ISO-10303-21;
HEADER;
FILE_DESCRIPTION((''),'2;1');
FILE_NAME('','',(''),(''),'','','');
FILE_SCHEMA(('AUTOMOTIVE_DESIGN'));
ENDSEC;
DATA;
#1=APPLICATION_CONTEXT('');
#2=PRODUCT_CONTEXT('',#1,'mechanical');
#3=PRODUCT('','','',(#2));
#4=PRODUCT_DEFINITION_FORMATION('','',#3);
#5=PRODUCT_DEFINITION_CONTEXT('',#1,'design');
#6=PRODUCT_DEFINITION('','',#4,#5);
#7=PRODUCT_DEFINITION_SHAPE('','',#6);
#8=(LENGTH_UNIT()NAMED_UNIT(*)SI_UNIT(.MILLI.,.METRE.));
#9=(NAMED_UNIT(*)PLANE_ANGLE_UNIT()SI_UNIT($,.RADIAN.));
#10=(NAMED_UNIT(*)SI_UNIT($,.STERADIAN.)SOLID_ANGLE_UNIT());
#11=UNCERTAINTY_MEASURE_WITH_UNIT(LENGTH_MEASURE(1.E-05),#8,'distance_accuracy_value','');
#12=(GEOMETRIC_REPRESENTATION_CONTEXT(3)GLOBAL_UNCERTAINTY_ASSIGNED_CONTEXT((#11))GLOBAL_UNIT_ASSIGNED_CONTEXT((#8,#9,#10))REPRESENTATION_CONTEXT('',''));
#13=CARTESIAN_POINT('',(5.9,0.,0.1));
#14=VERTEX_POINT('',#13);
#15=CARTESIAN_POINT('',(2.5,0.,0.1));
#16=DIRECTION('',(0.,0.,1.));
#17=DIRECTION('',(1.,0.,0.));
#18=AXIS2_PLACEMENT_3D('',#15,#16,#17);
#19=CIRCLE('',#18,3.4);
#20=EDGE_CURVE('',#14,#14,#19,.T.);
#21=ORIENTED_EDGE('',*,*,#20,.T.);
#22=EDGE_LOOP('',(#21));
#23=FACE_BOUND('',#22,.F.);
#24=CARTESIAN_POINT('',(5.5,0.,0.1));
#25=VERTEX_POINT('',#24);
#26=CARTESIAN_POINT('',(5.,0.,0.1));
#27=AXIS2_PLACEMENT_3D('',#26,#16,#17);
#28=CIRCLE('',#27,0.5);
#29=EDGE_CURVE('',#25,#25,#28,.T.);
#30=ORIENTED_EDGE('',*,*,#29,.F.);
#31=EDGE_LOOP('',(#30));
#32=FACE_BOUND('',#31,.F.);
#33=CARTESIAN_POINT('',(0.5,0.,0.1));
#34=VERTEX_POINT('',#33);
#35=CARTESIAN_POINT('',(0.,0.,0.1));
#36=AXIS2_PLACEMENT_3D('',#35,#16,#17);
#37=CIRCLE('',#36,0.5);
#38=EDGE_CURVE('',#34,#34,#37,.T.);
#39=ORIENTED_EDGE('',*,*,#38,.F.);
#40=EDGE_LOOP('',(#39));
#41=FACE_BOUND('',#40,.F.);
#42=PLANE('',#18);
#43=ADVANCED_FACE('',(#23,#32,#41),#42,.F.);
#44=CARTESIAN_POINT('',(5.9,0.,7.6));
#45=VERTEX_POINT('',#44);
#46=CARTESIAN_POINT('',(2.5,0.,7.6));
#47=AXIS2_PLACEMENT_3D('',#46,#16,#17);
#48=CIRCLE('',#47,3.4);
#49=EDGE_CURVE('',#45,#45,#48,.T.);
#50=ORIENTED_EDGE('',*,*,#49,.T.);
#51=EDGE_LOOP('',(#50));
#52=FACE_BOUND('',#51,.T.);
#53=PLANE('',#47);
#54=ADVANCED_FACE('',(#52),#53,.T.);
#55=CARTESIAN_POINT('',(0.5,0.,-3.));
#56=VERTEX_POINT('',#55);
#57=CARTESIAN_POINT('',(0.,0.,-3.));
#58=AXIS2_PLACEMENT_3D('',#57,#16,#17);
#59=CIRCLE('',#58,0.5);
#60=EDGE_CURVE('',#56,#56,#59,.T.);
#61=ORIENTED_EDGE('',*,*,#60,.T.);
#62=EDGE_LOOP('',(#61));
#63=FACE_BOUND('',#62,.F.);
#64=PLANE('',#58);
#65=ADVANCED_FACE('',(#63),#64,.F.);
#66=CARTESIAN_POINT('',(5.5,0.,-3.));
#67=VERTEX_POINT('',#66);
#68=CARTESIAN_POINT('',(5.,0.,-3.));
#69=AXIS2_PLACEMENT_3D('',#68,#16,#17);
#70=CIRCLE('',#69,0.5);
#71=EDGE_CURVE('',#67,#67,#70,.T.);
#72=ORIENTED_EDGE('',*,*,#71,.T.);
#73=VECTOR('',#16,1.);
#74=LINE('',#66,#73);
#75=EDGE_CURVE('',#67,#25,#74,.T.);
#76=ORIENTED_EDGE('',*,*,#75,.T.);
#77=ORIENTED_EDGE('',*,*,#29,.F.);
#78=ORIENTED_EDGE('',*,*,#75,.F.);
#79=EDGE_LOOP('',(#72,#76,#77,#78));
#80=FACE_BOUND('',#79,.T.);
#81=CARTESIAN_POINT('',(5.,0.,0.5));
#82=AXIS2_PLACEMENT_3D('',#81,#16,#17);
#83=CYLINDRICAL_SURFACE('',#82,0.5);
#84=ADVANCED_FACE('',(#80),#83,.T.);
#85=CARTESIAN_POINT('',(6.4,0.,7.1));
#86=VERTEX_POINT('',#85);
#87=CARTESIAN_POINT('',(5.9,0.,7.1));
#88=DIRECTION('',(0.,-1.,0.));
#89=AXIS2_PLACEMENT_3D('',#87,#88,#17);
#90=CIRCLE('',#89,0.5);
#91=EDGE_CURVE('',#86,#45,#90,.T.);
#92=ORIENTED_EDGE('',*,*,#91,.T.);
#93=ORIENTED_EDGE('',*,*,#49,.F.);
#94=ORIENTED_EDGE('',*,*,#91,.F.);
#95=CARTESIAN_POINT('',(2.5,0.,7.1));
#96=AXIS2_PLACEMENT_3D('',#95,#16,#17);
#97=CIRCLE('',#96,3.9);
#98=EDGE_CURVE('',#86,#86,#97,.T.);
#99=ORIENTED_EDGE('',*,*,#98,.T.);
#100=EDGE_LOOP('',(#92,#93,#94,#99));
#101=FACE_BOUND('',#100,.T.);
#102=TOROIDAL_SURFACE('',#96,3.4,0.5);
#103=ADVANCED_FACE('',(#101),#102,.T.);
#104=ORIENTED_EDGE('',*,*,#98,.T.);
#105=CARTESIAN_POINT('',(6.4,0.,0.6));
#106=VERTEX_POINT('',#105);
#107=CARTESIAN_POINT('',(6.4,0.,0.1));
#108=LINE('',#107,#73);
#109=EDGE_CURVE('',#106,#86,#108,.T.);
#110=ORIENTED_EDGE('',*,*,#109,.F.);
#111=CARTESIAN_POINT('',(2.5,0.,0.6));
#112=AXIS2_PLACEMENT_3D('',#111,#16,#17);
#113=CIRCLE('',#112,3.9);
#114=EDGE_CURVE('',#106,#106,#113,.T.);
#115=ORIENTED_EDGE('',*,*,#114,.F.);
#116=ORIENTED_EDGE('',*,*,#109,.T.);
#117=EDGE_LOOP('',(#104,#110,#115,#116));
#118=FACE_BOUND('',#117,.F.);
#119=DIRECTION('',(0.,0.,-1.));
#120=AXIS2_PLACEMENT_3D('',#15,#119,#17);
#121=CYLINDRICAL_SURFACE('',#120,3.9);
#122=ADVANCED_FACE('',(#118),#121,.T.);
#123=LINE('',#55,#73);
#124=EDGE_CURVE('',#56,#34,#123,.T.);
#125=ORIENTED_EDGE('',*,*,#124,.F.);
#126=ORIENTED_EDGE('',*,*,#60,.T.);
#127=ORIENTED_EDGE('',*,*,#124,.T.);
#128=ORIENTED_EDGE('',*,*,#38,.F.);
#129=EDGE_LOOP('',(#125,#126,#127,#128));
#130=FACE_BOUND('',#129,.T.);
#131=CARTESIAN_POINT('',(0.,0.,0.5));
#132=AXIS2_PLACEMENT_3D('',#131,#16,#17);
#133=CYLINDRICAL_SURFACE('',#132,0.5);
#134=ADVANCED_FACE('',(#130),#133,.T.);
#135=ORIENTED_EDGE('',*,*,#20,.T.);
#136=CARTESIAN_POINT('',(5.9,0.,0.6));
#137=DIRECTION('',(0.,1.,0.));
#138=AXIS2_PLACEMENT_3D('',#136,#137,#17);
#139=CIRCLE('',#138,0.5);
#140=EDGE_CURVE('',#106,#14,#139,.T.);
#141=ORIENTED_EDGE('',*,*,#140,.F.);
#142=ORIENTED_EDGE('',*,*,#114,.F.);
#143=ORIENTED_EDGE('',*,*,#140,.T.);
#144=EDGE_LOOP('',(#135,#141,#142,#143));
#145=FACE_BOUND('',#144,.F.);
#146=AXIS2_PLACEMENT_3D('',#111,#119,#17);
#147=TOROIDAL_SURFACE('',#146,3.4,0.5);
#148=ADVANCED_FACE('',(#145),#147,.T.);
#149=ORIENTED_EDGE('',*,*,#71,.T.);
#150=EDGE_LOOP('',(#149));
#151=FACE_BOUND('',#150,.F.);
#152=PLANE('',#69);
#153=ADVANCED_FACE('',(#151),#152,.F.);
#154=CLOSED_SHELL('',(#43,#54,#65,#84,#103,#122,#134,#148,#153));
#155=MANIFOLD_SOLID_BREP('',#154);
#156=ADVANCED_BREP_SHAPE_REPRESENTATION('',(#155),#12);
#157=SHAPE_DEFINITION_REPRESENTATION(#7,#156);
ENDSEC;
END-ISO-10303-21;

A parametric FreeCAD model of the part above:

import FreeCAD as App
import Part
import Sketcher


def edges_at(feature, points):
    """Names of the edges that pass closest to the given points."""
    edges = feature.Shape.Edges
    near = lambda p: min(range(len(edges)), key=lambda i: edges[i].distToShape(Part.Vertex(*p))[0])
    return sorted({f"Edge{near(p) + 1}" for p in points})

doc = App.newDocument("Part")
body = doc.addObject("PartDesign::Body", "Body")
body.AllowCompound = True

sketch1 = body.newObject("Sketcher::SketchObject", "Sketch")
sketch1.AttachmentSupport = (doc.getObject("XY_Plane"), [""])
sketch1.MapMode = "FlatFace"
sketch1.AttachmentOffset = App.Placement(App.Vector(0, 0, 0.5), App.Rotation())
sketch1.addGeometry(Part.Circle(App.Vector(0, 0, 0), App.Vector(0, 0, 1), 0.5), False)
sketch1.addGeometry(Part.Circle(App.Vector(5, 0, 0), App.Vector(0, 0, 1), 0.5), False)
sketch1.addConstraint(Sketcher.Constraint("Coincident", 0, 3, -1, 1))
sketch1.addConstraint(Sketcher.Constraint("Equal", 0, 1))
sketch1.addConstraint(Sketcher.Constraint("PointOnObject", 1, 3, -1))
sketch1.addConstraint(Sketcher.Constraint("Diameter", 0, 1.0))
sketch1.addConstraint(Sketcher.Constraint("DistanceX", -1, 1, 1, 3, 5.0))
pad1 = body.newObject("PartDesign::Pad", "Pad")
pad1.Profile = sketch1
pad1.Type = "TwoLengths"
pad1.Length = 3.75
pad1.Length2 = 3.5
body2 = doc.addObject("PartDesign::Body", "Body001")

sketch2 = body2.newObject("Sketcher::SketchObject", "Sketch001")
sketch2.AttachmentSupport = (doc.getObject("XY_Plane001"), [""])
sketch2.MapMode = "FlatFace"
sketch2.AttachmentOffset = App.Placement(App.Vector(0, 0, 0.1), App.Rotation())
sketch2.addGeometry(Part.Circle(App.Vector(2.5, 0, 0), App.Vector(0, 0, 1), 3.9), False)
sketch2.addConstraint(Sketcher.Constraint("PointOnObject", 0, 3, -1))
sketch2.addConstraint(Sketcher.Constraint("Diameter", 0, 7.8))
sketch2.addConstraint(Sketcher.Constraint("DistanceX", -1, 1, 0, 3, 2.5))
pad2 = body2.newObject("PartDesign::Pad", "Pad001")
pad2.Profile = sketch2
pad2.Length = 7.5
doc.recompute()

fillet = body2.newObject("PartDesign::Fillet", "Fillet")
fillet.Base = (pad2, edges_at(pad2, [(-1.4, 0, 0.1), (-1.4, 0, 7.6)]))
fillet.Radius = 0.5
doc.recompute()

boolean = body2.newObject("PartDesign::Boolean", "Boolean")
boolean.Type = "Fuse"
boolean.addObjects([body])

doc.recompute()
